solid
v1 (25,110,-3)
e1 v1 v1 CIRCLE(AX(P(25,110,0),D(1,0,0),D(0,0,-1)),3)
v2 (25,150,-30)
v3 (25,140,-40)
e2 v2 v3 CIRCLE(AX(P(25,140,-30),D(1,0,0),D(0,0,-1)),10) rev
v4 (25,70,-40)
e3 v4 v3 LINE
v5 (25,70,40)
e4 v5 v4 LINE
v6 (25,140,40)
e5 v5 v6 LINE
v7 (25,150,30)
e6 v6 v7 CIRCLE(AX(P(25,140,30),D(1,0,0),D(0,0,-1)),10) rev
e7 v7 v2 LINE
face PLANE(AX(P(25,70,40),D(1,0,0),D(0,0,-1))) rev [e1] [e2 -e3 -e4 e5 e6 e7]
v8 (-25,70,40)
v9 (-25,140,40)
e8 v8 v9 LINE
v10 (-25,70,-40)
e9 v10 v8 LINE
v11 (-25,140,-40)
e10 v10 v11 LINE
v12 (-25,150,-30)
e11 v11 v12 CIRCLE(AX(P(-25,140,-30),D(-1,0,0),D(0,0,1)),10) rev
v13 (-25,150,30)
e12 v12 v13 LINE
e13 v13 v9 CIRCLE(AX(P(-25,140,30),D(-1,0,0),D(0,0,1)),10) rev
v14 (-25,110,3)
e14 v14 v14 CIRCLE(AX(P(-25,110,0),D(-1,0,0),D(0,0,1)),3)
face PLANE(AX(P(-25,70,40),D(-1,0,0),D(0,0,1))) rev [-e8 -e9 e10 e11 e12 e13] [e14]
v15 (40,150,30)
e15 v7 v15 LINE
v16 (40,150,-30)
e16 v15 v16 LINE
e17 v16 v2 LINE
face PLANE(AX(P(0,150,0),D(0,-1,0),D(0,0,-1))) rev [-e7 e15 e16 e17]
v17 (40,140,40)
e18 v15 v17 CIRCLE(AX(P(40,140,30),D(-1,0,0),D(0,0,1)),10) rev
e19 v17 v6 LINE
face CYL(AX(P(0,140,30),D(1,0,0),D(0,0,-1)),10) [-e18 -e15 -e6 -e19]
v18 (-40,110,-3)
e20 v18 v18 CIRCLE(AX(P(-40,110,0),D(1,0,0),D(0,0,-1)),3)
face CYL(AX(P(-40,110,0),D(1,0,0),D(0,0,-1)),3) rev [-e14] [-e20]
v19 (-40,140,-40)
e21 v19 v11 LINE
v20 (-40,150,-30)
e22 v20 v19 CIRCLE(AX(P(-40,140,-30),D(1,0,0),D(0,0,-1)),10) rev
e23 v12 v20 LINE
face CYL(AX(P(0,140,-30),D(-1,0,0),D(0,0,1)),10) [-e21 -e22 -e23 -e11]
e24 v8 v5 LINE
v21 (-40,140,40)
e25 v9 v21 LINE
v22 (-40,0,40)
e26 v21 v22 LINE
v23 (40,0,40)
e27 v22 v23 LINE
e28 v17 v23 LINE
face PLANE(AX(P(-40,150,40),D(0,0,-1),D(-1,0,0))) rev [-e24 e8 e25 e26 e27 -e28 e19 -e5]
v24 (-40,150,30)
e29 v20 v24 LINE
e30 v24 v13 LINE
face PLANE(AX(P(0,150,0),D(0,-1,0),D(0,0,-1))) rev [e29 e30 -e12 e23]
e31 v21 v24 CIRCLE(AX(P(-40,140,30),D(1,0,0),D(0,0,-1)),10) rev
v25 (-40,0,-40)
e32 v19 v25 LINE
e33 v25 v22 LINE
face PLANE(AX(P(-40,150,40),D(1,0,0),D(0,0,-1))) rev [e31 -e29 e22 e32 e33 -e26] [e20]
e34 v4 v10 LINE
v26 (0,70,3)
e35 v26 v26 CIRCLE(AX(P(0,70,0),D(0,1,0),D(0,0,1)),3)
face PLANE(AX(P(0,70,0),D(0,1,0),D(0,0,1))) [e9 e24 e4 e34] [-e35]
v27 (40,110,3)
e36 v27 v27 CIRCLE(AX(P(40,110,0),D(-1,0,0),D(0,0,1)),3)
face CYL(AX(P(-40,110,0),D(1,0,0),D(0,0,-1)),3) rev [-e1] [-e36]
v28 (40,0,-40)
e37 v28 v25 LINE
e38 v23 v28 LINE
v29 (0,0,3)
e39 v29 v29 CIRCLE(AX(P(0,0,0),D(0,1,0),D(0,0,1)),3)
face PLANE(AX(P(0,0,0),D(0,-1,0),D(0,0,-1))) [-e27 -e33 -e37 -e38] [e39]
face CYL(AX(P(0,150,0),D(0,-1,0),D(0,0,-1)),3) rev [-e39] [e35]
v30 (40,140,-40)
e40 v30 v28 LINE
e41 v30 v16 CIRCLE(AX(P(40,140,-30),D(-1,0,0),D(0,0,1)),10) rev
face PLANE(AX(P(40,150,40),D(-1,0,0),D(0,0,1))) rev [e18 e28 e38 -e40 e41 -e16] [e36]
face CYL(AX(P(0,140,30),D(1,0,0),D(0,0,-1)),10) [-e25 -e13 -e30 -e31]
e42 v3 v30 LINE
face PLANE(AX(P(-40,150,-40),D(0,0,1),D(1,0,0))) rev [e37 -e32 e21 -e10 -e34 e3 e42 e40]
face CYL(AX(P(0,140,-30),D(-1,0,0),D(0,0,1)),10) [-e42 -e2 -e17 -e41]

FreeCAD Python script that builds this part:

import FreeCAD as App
import Part
import Sketcher
from FreeCAD import Vector
Q = App.Units.Quantity


def edges_at(feature, points):
    """Names of the edges that pass closest to the given points."""
    edges = feature.Shape.Edges
    near = lambda p: min(range(len(edges)), key=lambda i: edges[i].distToShape(Part.Vertex(*p))[0])
    return sorted({f"Edge{near(p) + 1}" for p in points})


def add_polygon(sketch, points):
    """Adds a closed chain of lines whose ends are joined by coincident constraints."""
    first, n = sketch.GeometryCount, len(points)
    for a, b in zip(points, points[1:] + points[:1]):
        sketch.addGeometry(Part.LineSegment(App.Vector(*a, 0), App.Vector(*b, 0)), False)
    for i in range(n):
        sketch.addConstraint(Sketcher.Constraint("Coincident", first + i, 2, first + (i + 1) % n, 1))

doc = App.newDocument("Part")
body = doc.addObject("PartDesign::Body", "Body")

sketch1 = body.newObject("Sketcher::SketchObject", "Sketch")
sketch1.AttachmentSupport = (doc.getObject("XZ_Plane"), [""])
sketch1.MapMode = "FlatFace"
add_polygon(sketch1, [(-40, -40), (-40, 40), (40, 40), (40, -40)])
sketch1.addGeometry(Part.Circle(Vector(0, 0, 0), Vector(0, 0, 1), 3), False)
sketch1.addConstraint(Sketcher.Constraint("Vertical", 0))
sketch1.addConstraint(Sketcher.Constraint("Horizontal", 1))
sketch1.addConstraint(Sketcher.Constraint("Vertical", 2))
sketch1.addConstraint(Sketcher.Constraint("Horizontal", 3))
sketch1.addConstraint(Sketcher.Constraint("Coincident", 4, 3, -1, 1))
sketch1.addConstraint(Sketcher.Constraint("Symmetric", 0, 2, 2, 2, -1, 1))
sketch1.addConstraint(Sketcher.Constraint("Equal", 3, 0))
sketch1.addConstraint(Sketcher.Constraint("Diameter", 4, Q("6 mm")))
sketch1.addConstraint(Sketcher.Constraint("DistanceX", 1, 1, 1, 2, Q("80 mm")))
pad1 = body.newObject("PartDesign::Pad", "Pad")
pad1.Profile = sketch1
pad1.Length = 150
pad1.Reversed = True

sketch2 = body.newObject("Sketcher::SketchObject", "Sketch001")
sketch2.AttachmentSupport = (doc.getObject("XZ_Plane"), [""])
sketch2.MapMode = "FlatFace"
sketch2.AttachmentOffset = App.Placement(Vector(0, 0, -150), App.Rotation())
add_polygon(sketch2, [(-25, -40), (-25, 40), (25, 40), (25, -40)])
sketch2.addConstraint(Sketcher.Constraint("Vertical", 0))
sketch2.addConstraint(Sketcher.Constraint("Horizontal", 1))
sketch2.addConstraint(Sketcher.Constraint("Vertical", 2))
sketch2.addConstraint(Sketcher.Constraint("Horizontal", 3))
sketch2.addConstraint(Sketcher.Constraint("Symmetric", 0, 2, 2, 2, -1, 1))
sketch2.addConstraint(Sketcher.Constraint("DistanceX", 1, 1, 1, 2, Q("50 mm")))
sketch2.addConstraint(Sketcher.Constraint("DistanceY", 0, 1, 0, 2, Q("80 mm")))
pocket1 = body.newObject("PartDesign::Pocket", "Pocket")
pocket1.Profile = sketch2
pocket1.Length = 80
pocket1.Reversed = True

sketch3 = body.newObject("Sketcher::SketchObject", "Sketch002")
sketch3.AttachmentSupport = (doc.getObject("YZ_Plane"), [""])
sketch3.MapMode = "FlatFace"
sketch3.AttachmentOffset = App.Placement(Vector(0, 0, 40), App.Rotation())
sketch3.addGeometry(Part.Circle(Vector(110, 0, 0), Vector(0, 0, 1), 3), False)
sketch3.addConstraint(Sketcher.Constraint("PointOnObject", 0, 3, -1))
sketch3.addConstraint(Sketcher.Constraint("Diameter", 0, Q("6 mm")))
sketch3.addConstraint(Sketcher.Constraint("DistanceX", -1, 1, 0, 3, Q("110 mm")))
pocket2 = body.newObject("PartDesign::Pocket", "Pocket001")
pocket2.Profile = sketch3
pocket2.Type = "ThroughAll"
pocket2.Midplane = True
doc.recompute()

fillet = body.newObject("PartDesign::Fillet", "Fillet")
fillet.Base = (pocket2, edges_at(pocket2, [
    (-32.5, 150, 40),
    (32.5, 150, 40),
    (-32.5, 150, -40),
    (32.5, 150, -40),
]))
fillet.Radius = 10

doc.recompute()
